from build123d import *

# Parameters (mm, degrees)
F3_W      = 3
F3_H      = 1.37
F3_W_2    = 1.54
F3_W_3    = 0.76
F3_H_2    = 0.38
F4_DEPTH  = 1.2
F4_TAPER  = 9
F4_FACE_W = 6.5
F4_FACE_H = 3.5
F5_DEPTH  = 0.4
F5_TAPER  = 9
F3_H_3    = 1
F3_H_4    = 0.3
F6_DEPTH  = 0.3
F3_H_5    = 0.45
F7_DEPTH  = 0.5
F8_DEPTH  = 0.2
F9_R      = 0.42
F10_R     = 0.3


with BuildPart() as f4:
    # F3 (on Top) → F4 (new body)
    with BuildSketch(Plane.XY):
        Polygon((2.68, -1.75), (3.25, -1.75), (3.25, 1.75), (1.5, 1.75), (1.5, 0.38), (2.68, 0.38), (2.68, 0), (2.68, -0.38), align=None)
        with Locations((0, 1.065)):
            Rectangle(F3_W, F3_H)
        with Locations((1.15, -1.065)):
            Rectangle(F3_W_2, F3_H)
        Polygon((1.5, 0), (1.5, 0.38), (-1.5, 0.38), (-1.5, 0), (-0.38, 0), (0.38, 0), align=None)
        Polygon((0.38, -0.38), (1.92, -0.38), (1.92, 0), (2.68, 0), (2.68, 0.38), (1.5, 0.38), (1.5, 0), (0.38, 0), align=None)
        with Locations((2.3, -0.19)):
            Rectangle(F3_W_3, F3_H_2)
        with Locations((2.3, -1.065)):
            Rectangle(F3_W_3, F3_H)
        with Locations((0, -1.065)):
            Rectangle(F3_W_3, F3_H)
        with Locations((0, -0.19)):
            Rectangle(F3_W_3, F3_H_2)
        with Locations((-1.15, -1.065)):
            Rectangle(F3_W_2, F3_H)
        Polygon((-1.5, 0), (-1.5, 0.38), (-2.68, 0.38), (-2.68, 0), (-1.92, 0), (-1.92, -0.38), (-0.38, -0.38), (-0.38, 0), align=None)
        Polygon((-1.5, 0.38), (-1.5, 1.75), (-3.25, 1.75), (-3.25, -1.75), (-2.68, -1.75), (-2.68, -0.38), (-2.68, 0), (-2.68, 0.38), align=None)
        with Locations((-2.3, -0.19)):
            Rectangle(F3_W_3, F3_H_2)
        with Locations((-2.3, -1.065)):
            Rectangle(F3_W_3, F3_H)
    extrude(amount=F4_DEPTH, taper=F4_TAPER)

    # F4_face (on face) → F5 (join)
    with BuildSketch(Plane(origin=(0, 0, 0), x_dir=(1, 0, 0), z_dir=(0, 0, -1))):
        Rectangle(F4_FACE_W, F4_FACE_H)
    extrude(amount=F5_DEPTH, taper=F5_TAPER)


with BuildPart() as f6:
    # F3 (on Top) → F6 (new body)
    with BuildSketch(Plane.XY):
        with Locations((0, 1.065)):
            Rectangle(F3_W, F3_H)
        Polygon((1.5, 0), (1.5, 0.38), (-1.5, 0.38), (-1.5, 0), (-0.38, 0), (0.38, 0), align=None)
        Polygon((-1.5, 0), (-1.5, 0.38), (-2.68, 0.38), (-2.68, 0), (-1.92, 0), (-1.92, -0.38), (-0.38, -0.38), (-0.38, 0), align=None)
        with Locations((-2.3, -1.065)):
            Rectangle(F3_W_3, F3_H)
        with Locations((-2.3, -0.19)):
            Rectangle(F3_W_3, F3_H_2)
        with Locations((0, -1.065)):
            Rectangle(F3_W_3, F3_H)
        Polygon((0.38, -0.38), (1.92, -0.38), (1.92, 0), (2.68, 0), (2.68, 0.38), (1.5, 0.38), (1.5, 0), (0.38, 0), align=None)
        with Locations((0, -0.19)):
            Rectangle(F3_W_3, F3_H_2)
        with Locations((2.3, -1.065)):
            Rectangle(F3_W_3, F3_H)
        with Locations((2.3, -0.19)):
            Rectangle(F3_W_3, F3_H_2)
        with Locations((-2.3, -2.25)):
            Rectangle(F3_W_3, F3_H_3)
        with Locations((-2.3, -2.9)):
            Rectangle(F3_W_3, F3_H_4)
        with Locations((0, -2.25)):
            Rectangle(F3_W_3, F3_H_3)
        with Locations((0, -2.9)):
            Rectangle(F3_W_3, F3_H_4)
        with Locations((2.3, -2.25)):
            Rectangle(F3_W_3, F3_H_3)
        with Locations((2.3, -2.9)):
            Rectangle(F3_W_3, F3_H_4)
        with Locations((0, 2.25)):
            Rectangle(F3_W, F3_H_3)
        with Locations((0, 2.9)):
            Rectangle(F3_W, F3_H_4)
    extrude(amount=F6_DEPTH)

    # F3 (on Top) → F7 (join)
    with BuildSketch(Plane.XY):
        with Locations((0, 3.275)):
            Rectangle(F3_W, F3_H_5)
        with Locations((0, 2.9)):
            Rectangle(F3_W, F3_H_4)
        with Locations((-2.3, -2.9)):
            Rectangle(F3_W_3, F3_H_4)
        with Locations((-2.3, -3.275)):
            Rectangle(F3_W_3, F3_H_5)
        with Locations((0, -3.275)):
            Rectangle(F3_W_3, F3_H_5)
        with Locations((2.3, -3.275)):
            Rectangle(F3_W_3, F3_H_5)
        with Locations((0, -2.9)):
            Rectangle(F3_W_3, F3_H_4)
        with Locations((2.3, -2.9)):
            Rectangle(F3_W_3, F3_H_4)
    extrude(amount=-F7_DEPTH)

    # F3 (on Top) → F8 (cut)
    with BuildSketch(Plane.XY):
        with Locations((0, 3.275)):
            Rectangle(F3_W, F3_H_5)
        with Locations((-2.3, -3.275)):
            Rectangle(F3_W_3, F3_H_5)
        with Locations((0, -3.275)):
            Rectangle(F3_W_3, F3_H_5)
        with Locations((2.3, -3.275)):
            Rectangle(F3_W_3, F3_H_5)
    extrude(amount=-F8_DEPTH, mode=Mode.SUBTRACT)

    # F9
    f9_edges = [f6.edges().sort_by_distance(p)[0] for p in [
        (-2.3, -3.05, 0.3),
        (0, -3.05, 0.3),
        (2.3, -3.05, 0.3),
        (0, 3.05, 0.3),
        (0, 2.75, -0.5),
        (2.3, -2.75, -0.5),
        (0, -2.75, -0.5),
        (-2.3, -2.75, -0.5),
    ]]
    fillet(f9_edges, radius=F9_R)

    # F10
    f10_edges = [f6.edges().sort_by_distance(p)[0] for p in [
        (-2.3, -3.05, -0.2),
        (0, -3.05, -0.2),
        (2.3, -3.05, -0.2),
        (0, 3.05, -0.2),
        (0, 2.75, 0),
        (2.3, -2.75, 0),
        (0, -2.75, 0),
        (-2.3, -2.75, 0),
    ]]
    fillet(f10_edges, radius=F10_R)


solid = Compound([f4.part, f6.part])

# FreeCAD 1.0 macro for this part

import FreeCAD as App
import Part
import Sketcher

V = App.Vector
Q = App.Units.Quantity


def edges_at(feature, points):
    """Names of the edges that pass closest to the given points."""
    edges = feature.Shape.Edges
    near = lambda p: min(range(len(edges)), key=lambda i: edges[i].distToShape(Part.Vertex(*p))[0])
    return sorted({f"Edge{near(p) + 1}" for p in points})

doc = App.newDocument("Part")
body = doc.addObject("PartDesign::Body", "Body")

# Sketch on XY plane
sketch1 = body.newObject("Sketcher::SketchObject", "Sketch")
sketch1.AttachmentSupport = (doc.getObject("XY_Plane"), [""])
sketch1.MapMode = "FlatFace"
sketch1.addGeometry(Part.LineSegment(V(3.2, -1.8, 0), V(3.2, 1.8, 0)), False)
sketch1.addGeometry(Part.LineSegment(V(3.2, 1.8, 0), V(-3.2, 1.8, 0)), False)
sketch1.addGeometry(Part.LineSegment(V(-3.2, 1.8, 0), V(-3.2, -1.8, 0)), False)
sketch1.addGeometry(Part.LineSegment(V(-3.2, -1.8, 0), V(3.2, -1.8, 0)), False)
sketch1.addConstraint(Sketcher.Constraint("Coincident", 0, 2, 1, 1))
sketch1.addConstraint(Sketcher.Constraint("Coincident", 1, 2, 2, 1))
sketch1.addConstraint(Sketcher.Constraint("Coincident", 2, 2, 3, 1))
sketch1.addConstraint(Sketcher.Constraint("Coincident", 3, 2, 0, 1))
sketch1.addConstraint(Sketcher.Constraint("Vertical", 0))
sketch1.addConstraint(Sketcher.Constraint("Horizontal", 1))
sketch1.addConstraint(Sketcher.Constraint("Vertical", 2))
sketch1.addConstraint(Sketcher.Constraint("Horizontal", 3))
sketch1.addConstraint(Sketcher.Constraint("Symmetric", 0, 2, 2, 2, -1, 1))
sketch1.addConstraint(Sketcher.Constraint("DistanceX", 1, 2, 1, 1, Q("6.5 mm")))
sketch1.addConstraint(Sketcher.Constraint("DistanceY", 0, 1, 0, 2, Q("3.5 mm")))
pad1 = body.newObject("PartDesign::Pad", "Pad")
pad1.Profile = sketch1
pad1.Length = 1.2
pad1.TaperAngle = -9

# Sketch on XY plane
sketch2 = body.newObject("Sketcher::SketchObject", "Sketch001")
sketch2.AttachmentSupport = (doc.getObject("XY_Plane"), [""])
sketch2.MapMode = "FlatFace"
sketch2.addGeometry(Part.LineSegment(V(-3.2, -1.8, 0), V(-3.2, 1.8, 0)), False)
sketch2.addGeometry(Part.LineSegment(V(-3.2, 1.8, 0), V(3.2, 1.8, 0)), False)
sketch2.addGeometry(Part.LineSegment(V(3.2, 1.8, 0), V(3.2, -1.8, 0)), False)
sketch2.addGeometry(Part.LineSegment(V(3.2, -1.8, 0), V(-3.2, -1.8, 0)), False)
sketch2.addConstraint(Sketcher.Constraint("Coincident", 0, 2, 1, 1))
sketch2.addConstraint(Sketcher.Constraint("Coincident", 1, 2, 2, 1))
sketch2.addConstraint(Sketcher.Constraint("Coincident", 2, 2, 3, 1))
sketch2.addConstraint(Sketcher.Constraint("Coincident", 3, 2, 0, 1))
sketch2.addConstraint(Sketcher.Constraint("Vertical", 0))
sketch2.addConstraint(Sketcher.Constraint("Horizontal", 1))
sketch2.addConstraint(Sketcher.Constraint("Vertical", 2))
sketch2.addConstraint(Sketcher.Constraint("Horizontal", 3))
sketch2.addConstraint(Sketcher.Constraint("Symmetric", 0, 2, 2, 2, -1, 1))
sketch2.addConstraint(Sketcher.Constraint("DistanceX", 1, 1, 1, 2, Q("6.5 mm")))
sketch2.addConstraint(Sketcher.Constraint("DistanceY", 0, 1, 0, 2, Q("3.5 mm")))
pad2 = body.newObject("PartDesign::Pad", "Pad001")
pad2.Profile = sketch2
pad2.Length = 0.4
pad2.Reversed = True
pad2.TaperAngle = -9
body2 = doc.addObject("PartDesign::Body", "Body001")

# Sketch on XY plane
sketch3 = body2.newObject("Sketcher::SketchObject", "Sketch002")
sketch3.AttachmentSupport = (doc.getObject("XY_Plane001"), [""])
sketch3.MapMode = "FlatFace"
sketch3.addGeometry(Part.LineSegment(V(-1.5, 0.4, 0), V(-2.7, 0.4, 0)), False)
sketch3.addGeometry(Part.LineSegment(V(-2.7, 0.4, 0), V(-2.7, -3, 0)), False)
sketch3.addGeometry(Part.LineSegment(V(-2.7, -3, 0), V(-1.9, -3, 0)), False)
sketch3.addGeometry(Part.LineSegment(V(-1.9, -3, 0), V(-1.9, -0.4, 0)), False)
sketch3.addGeometry(Part.LineSegment(V(-1.9, -0.4, 0), V(-0.4, -0.4, 0)), False)
sketch3.addGeometry(Part.LineSegment(V(-0.4, -0.4, 0), V(-0.4, -3, 0)), False)
sketch3.addGeometry(Part.LineSegment(V(-0.4, -3, 0), V(0.4, -3, 0)), False)
sketch3.addGeometry(Part.LineSegment(V(0.4, -3, 0), V(0.4, -0.4, 0)), False)
sketch3.addGeometry(Part.LineSegment(V(0.4, -0.4, 0), V(1.9, -0.4, 0)), False)
sketch3.addGeometry(Part.LineSegment(V(1.9, -0.4, 0), V(1.9, -3, 0)), False)
sketch3.addGeometry(Part.LineSegment(V(1.9, -3, 0), V(2.7, -3, 0)), False)
sketch3.addGeometry(Part.LineSegment(V(2.7, -3, 0), V(2.7, 0.4, 0)), False)
sketch3.addGeometry(Part.LineSegment(V(2.7, 0.4, 0), V(1.5, 0.4, 0)), False)
sketch3.addGeometry(Part.LineSegment(V(1.5, 0.4, 0), V(1.5, 3, 0)), False)
sketch3.addGeometry(Part.LineSegment(V(1.5, 3, 0), V(-1.5, 3, 0)), False)
sketch3.addGeometry(Part.LineSegment(V(-1.5, 3, 0), V(-1.5, 0.4, 0)), False)
sketch3.addConstraint(Sketcher.Constraint("Coincident", 0, 2, 1, 1))
sketch3.addConstraint(Sketcher.Constraint("Coincident", 1, 2, 2, 1))
sketch3.addConstraint(Sketcher.Constraint("Coincident", 2, 2, 3, 1))
sketch3.addConstraint(Sketcher.Constraint("Coincident", 3, 2, 4, 1))
sketch3.addConstraint(Sketcher.Constraint("Coincident", 4, 2, 5, 1))
sketch3.addConstraint(Sketcher.Constraint("Coincident", 5, 2, 6, 1))
sketch3.addConstraint(Sketcher.Constraint("Coincident", 6, 2, 7, 1))
sketch3.addConstraint(Sketcher.Constraint("Coincident", 7, 2, 8, 1))
sketch3.addConstraint(Sketcher.Constraint("Coincident", 8, 2, 9, 1))
sketch3.addConstraint(Sketcher.Constraint("Coincident", 9, 2, 10, 1))
sketch3.addConstraint(Sketcher.Constraint("Coincident", 10, 2, 11, 1))
sketch3.addConstraint(Sketcher.Constraint("Coincident", 11, 2, 12, 1))
sketch3.addConstraint(Sketcher.Constraint("Coincident", 12, 2, 13, 1))
sketch3.addConstraint(Sketcher.Constraint("Coincident", 13, 2, 14, 1))
sketch3.addConstraint(Sketcher.Constraint("Coincident", 14, 2, 15, 1))
sketch3.addConstraint(Sketcher.Constraint("Coincident", 15, 2, 0, 1))
sketch3.addConstraint(Sketcher.Constraint("Horizontal", 0))
sketch3.addConstraint(Sketcher.Constraint("Vertical", 1))
sketch3.addConstraint(Sketcher.Constraint("Horizontal", 2))
sketch3.addConstraint(Sketcher.Constraint("Vertical", 3))
sketch3.addConstraint(Sketcher.Constraint("Horizontal", 4))
sketch3.addConstraint(Sketcher.Constraint("Vertical", 5))
sketch3.addConstraint(Sketcher.Constraint("Horizontal", 6))
sketch3.addConstraint(Sketcher.Constraint("Vertical", 7))
sketch3.addConstraint(Sketcher.Constraint("Horizontal", 8))
sketch3.addConstraint(Sketcher.Constraint("Vertical", 9))
sketch3.addConstraint(Sketcher.Constraint("Horizontal", 10))
sketch3.addConstraint(Sketcher.Constraint("Vertical", 11))
sketch3.addConstraint(Sketcher.Constraint("Horizontal", 12))
sketch3.addConstraint(Sketcher.Constraint("Vertical", 13))
sketch3.addConstraint(Sketcher.Constraint("Horizontal", 14))
sketch3.addConstraint(Sketcher.Constraint("Vertical", 15))
sketch3.addConstraint(Sketcher.Constraint("Symmetric", 4, 2, 7, 2, -2))
sketch3.addConstraint(Sketcher.Constraint("Symmetric", 2, 2, 9, 2, -2))
sketch3.addConstraint(Sketcher.Constraint("Symmetric", 0, 2, 11, 2, -2))
sketch3.addConstraint(Sketcher.Constraint("Horizontal", 2, 2, 5, 2))
sketch3.addConstraint(Sketcher.Constraint("Equal", 2, 6))
sketch3.addConstraint(Sketcher.Constraint("Equal", 0, 12))
sketch3.addConstraint(Sketcher.Constraint("Equal", 9, 13))
sketch3.addConstraint(Sketcher.Constraint("DistanceX", 14, 2, 14, 1, Q("3 mm")))
sketch3.addConstraint(Sketcher.Constraint("DistanceX", 0, 2, 0, 1, Q("1.18 mm")))
sketch3.addConstraint(Sketcher.Constraint("DistanceX", 2, 1, 2, 2, Q("0.76 mm")))
sketch3.addConstraint(Sketcher.Constraint("DistanceY", 1, 2, 1, 1, Q("3.43 mm")))
sketch3.addConstraint(Sketcher.Constraint("DistanceY", 3, 1, 3, 2, Q("2.67 mm")))
sketch3.addConstraint(Sketcher.Constraint("DistanceY", -1, 1, 0, 2, Q("0.38 mm")))
pad3 = body2.newObject("PartDesign::Pad", "Pad002")
pad3.Profile = sketch3
pad3.Length = 0.3

# Sketch on XY plane
sketch4 = body2.newObject("Sketcher::SketchObject", "Sketch003")
sketch4.AttachmentSupport = (doc.getObject("XY_Plane001"), [""])
sketch4.MapMode = "FlatFace"
sketch4.addGeometry(Part.LineSegment(V(-1.5, 3.5, 0), V(-1.5, 2.8, 0)), False)
sketch4.addGeometry(Part.LineSegment(V(-1.5, 2.8, 0), V(1.5, 2.8, 0)), False)
sketch4.addGeometry(Part.LineSegment(V(1.5, 2.8, 0), V(1.5, 3.5, 0)), False)
sketch4.addGeometry(Part.LineSegment(V(1.5, 3.5, 0), V(-1.5, 3.5, 0)), False)
sketch4.addGeometry(Part.LineSegment(V(-2.7, -2.8, 0), V(-2.7, -3.5, 0)), False)
sketch4.addGeometry(Part.LineSegment(V(-2.7, -3.5, 0), V(-1.9, -3.5, 0)), False)
sketch4.addGeometry(Part.LineSegment(V(-1.9, -3.5, 0), V(-1.9, -2.8, 0)), False)
sketch4.addGeometry(Part.LineSegment(V(-1.9, -2.8, 0), V(-2.7, -2.8, 0)), False)
sketch4.addGeometry(Part.LineSegment(V(-0.4, -3.5, 0), V(0.4, -3.5, 0)), False)
sketch4.addGeometry(Part.LineSegment(V(0.4, -3.5, 0), V(0.4, -2.8, 0)), False)
sketch4.addGeometry(Part.LineSegment(V(0.4, -2.8, 0), V(-0.4, -2.8, 0)), False)
sketch4.addGeometry(Part.LineSegment(V(-0.4, -2.8, 0), V(-0.4, -3.5, 0)), False)
sketch4.addGeometry(Part.LineSegment(V(1.9, -3.5, 0), V(2.7, -3.5, 0)), False)
sketch4.addGeometry(Part.LineSegment(V(2.7, -3.5, 0), V(2.7, -2.8, 0)), False)
sketch4.addGeometry(Part.LineSegment(V(2.7, -2.8, 0), V(1.9, -2.8, 0)), False)
sketch4.addGeometry(Part.LineSegment(V(1.9, -2.8, 0), V(1.9, -3.5, 0)), False)
sketch4.addConstraint(Sketcher.Constraint("Coincident", 0, 2, 1, 1))
sketch4.addConstraint(Sketcher.Constraint("Coincident", 1, 2, 2, 1))
sketch4.addConstraint(Sketcher.Constraint("Coincident", 2, 2, 3, 1))
sketch4.addConstraint(Sketcher.Constraint("Coincident", 3, 2, 0, 1))
sketch4.addConstraint(Sketcher.Constraint("Coincident", 4, 2, 5, 1))
sketch4.addConstraint(Sketcher.Constraint("Coincident", 5, 2, 6, 1))
sketch4.addConstraint(Sketcher.Constraint("Coincident", 6, 2, 7, 1))
sketch4.addConstraint(Sketcher.Constraint("Coincident", 7, 2, 4, 1))
sketch4.addConstraint(Sketcher.Constraint("Coincident", 8, 2, 9, 1))
sketch4.addConstraint(Sketcher.Constraint("Coincident", 9, 2, 10, 1))
sketch4.addConstraint(Sketcher.Constraint("Coincident", 10, 2, 11, 1))
sketch4.addConstraint(Sketcher.Constraint("Coincident", 11, 2, 8, 1))
sketch4.addConstraint(Sketcher.Constraint("Coincident", 12, 2, 13, 1))
sketch4.addConstraint(Sketcher.Constraint("Coincident", 13, 2, 14, 1))
sketch4.addConstraint(Sketcher.Constraint("Coincident", 14, 2, 15, 1))
sketch4.addConstraint(Sketcher.Constraint("Coincident", 15, 2, 12, 1))
sketch4.addConstraint(Sketcher.Constraint("Vertical", 0))
sketch4.addConstraint(Sketcher.Constraint("Horizontal", 1))
sketch4.addConstraint(Sketcher.Constraint("Vertical", 2))
sketch4.addConstraint(Sketcher.Constraint("Horizontal", 3))
sketch4.addConstraint(Sketcher.Constraint("Vertical", 4))
sketch4.addConstraint(Sketcher.Constraint("Horizontal", 5))
sketch4.addConstraint(Sketcher.Constraint("Vertical", 6))
sketch4.addConstraint(Sketcher.Constraint("Horizontal", 7))
sketch4.addConstraint(Sketcher.Constraint("Horizontal", 8))
sketch4.addConstraint(Sketcher.Constraint("Vertical", 9))
sketch4.addConstraint(Sketcher.Constraint("Horizontal", 10))
sketch4.addConstraint(Sketcher.Constraint("Vertical", 11))
sketch4.addConstraint(Sketcher.Constraint("Horizontal", 12))
sketch4.addConstraint(Sketcher.Constraint("Vertical", 13))
sketch4.addConstraint(Sketcher.Constraint("Horizontal", 14))
sketch4.addConstraint(Sketcher.Constraint("Vertical", 15))
sketch4.addConstraint(Sketcher.Constraint("Symmetric", 4, 2, 12, 2, -2))
sketch4.addConstraint(Sketcher.Constraint("Symmetric", 6, 2, 14, 2, -2))
sketch4.addConstraint(Sketcher.Constraint("Horizontal", 5, 2, 8, 2))
sketch4.addConstraint(Sketcher.Constraint("Horizontal", 7, 2, 9, 2))
sketch4.addConstraint(Sketcher.Constraint("Equal", 7, 8))
sketch4.addConstraint(Sketcher.Constraint("Equal", 2, 4))
sketch4.addConstraint(Sketcher.Constraint("DistanceX", 1, 1, 1, 2, Q("3 mm")))
sketch4.addConstraint(Sketcher.Constraint("DistanceY", 4, 2, 3, 2, Q("7 mm")))
sketch4.addConstraint(Sketcher.Constraint("DistanceX", 5, 1, 5, 2, Q("0.76 mm")))
sketch4.addConstraint(Sketcher.Constraint("DistanceY", 0, 2, 0, 1, Q("0.75 mm")))
sketch4.addConstraint(Sketcher.Constraint("DistanceX", 0, 2, -1, 1, Q("1.5 mm")))
sketch4.addConstraint(Sketcher.Constraint("DistanceY", -1, 1, 2, 2, Q("3.5 mm")))
sketch4.addConstraint(Sketcher.Constraint("DistanceX", 5, 2, 8, 2, Q("2.3 mm")))
sketch4.addConstraint(Sketcher.Constraint("DistanceX", 8, 2, 12, 2, Q("2.3 mm")))
pad4 = body2.newObject("PartDesign::Pad", "Pad003")
pad4.Profile = sketch4
pad4.Length = 0.5
pad4.Reversed = True

# Sketch on XY plane
sketch5 = body2.newObject("Sketcher::SketchObject", "Sketch004")
sketch5.AttachmentSupport = (doc.getObject("XY_Plane001"), [""])
sketch5.MapMode = "FlatFace"
sketch5.addGeometry(Part.LineSegment(V(-1.5, 3.5, 0), V(-1.5, 3.05, 0)), False)
sketch5.addGeometry(Part.LineSegment(V(-1.5, 3.05, 0), V(1.5, 3.05, 0)), False)
sketch5.addGeometry(Part.LineSegment(V(1.5, 3.05, 0), V(1.5, 3.5, 0)), False)
sketch5.addGeometry(Part.LineSegment(V(1.5, 3.5, 0), V(-1.5, 3.5, 0)), False)
sketch5.addGeometry(Part.LineSegment(V(-2.68, -3.05, 0), V(-2.68, -3.5, 0)), False)
sketch5.addGeometry(Part.LineSegment(V(-2.68, -3.5, 0), V(-1.92, -3.5, 0)), False)
sketch5.addGeometry(Part.LineSegment(V(-1.92, -3.5, 0), V(-1.92, -3.05, 0)), False)
sketch5.addGeometry(Part.LineSegment(V(-1.92, -3.05, 0), V(-2.68, -3.05, 0)), False)
sketch5.addGeometry(Part.LineSegment(V(-0.38, -3.05, 0), V(-0.38, -3.5, 0)), False)
sketch5.addGeometry(Part.LineSegment(V(-0.38, -3.5, 0), V(0.38, -3.5, 0)), False)
sketch5.addGeometry(Part.LineSegment(V(0.38, -3.5, 0), V(0.38, -3.05, 0)), False)
sketch5.addGeometry(Part.LineSegment(V(0.38, -3.05, 0), V(-0.38, -3.05, 0)), False)
sketch5.addGeometry(Part.LineSegment(V(1.92, -3.05, 0), V(1.92, -3.5, 0)), False)
sketch5.addGeometry(Part.LineSegment(V(1.92, -3.5, 0), V(2.68, -3.5, 0)), False)
sketch5.addGeometry(Part.LineSegment(V(2.68, -3.5, 0), V(2.68, -3.05, 0)), False)
sketch5.addGeometry(Part.LineSegment(V(2.68, -3.05, 0), V(1.92, -3.05, 0)), False)
sketch5.addConstraint(Sketcher.Constraint("Coincident", 0, 2, 1, 1))
sketch5.addConstraint(Sketcher.Constraint("Coincident", 1, 2, 2, 1))
sketch5.addConstraint(Sketcher.Constraint("Coincident", 2, 2, 3, 1))
sketch5.addConstraint(Sketcher.Constraint("Coincident", 3, 2, 0, 1))
sketch5.addConstraint(Sketcher.Constraint("Coincident", 4, 2, 5, 1))
sketch5.addConstraint(Sketcher.Constraint("Coincident", 5, 2, 6, 1))
sketch5.addConstraint(Sketcher.Constraint("Coincident", 6, 2, 7, 1))
sketch5.addConstraint(Sketcher.Constraint("Coincident", 7, 2, 4, 1))
sketch5.addConstraint(Sketcher.Constraint("Coincident", 8, 2, 9, 1))
sketch5.addConstraint(Sketcher.Constraint("Coincident", 9, 2, 10, 1))
sketch5.addConstraint(Sketcher.Constraint("Coincident", 10, 2, 11, 1))
sketch5.addConstraint(Sketcher.Constraint("Coincident", 11, 2, 8, 1))
sketch5.addConstraint(Sketcher.Constraint("Coincident", 12, 2, 13, 1))
sketch5.addConstraint(Sketcher.Constraint("Coincident", 13, 2, 14, 1))
sketch5.addConstraint(Sketcher.Constraint("Coincident", 14, 2, 15, 1))
sketch5.addConstraint(Sketcher.Constraint("Coincident", 15, 2, 12, 1))
sketch5.addConstraint(Sketcher.Constraint("Vertical", 0))
sketch5.addConstraint(Sketcher.Constraint("Horizontal", 1))
sketch5.addConstraint(Sketcher.Constraint("Vertical", 2))
sketch5.addConstraint(Sketcher.Constraint("Horizontal", 3))
sketch5.addConstraint(Sketcher.Constraint("Vertical", 4))
sketch5.addConstraint(Sketcher.Constraint("Horizontal", 5))
sketch5.addConstraint(Sketcher.Constraint("Vertical", 6))
sketch5.addConstraint(Sketcher.Constraint("Horizontal", 7))
sketch5.addConstraint(Sketcher.Constraint("Vertical", 8))
sketch5.addConstraint(Sketcher.Constraint("Horizontal", 9))
sketch5.addConstraint(Sketcher.Constraint("Vertical", 10))
sketch5.addConstraint(Sketcher.Constraint("Horizontal", 11))
sketch5.addConstraint(Sketcher.Constraint("Vertical", 12))
sketch5.addConstraint(Sketcher.Constraint("Horizontal", 13))
sketch5.addConstraint(Sketcher.Constraint("Vertical", 14))
sketch5.addConstraint(Sketcher.Constraint("Horizontal", 15))
sketch5.addConstraint(Sketcher.Constraint("Symmetric", 5, 2, 12, 2, -2))
sketch5.addConstraint(Sketcher.Constraint("Symmetric", 7, 2, 14, 2, -2))
sketch5.addConstraint(Sketcher.Constraint("Horizontal", 5, 2, 8, 2))
sketch5.addConstraint(Sketcher.Constraint("Horizontal", 7, 2, 10, 2))
sketch5.addConstraint(Sketcher.Constraint("Equal", 7, 9))
sketch5.addConstraint(Sketcher.Constraint("Equal", 2, 4))
sketch5.addConstraint(Sketcher.Constraint("DistanceX", 1, 1, 1, 2, Q("3 mm")))
sketch5.addConstraint(Sketcher.Constraint("DistanceY", 4, 2, 3, 2, Q("7 mm")))
sketch5.addConstraint(Sketcher.Constraint("DistanceX", 5, 1, 5, 2, Q("0.76 mm")))
sketch5.addConstraint(Sketcher.Constraint("DistanceY", 0, 2, 0, 1, Q("0.45 mm")))
sketch5.addConstraint(Sketcher.Constraint("DistanceX", 0, 2, -1, 1, Q("1.5 mm")))
sketch5.addConstraint(Sketcher.Constraint("DistanceY", -1, 1, 2, 2, Q("3.5 mm")))
sketch5.addConstraint(Sketcher.Constraint("DistanceX", 4, 2, 8, 2, Q("2.3 mm")))
sketch5.addConstraint(Sketcher.Constraint("DistanceX", 8, 2, 12, 2, Q("2.3 mm")))
pocket1 = body2.newObject("PartDesign::Pocket", "Pocket")
pocket1.Profile = sketch5
pocket1.Length = 0.2
doc.recompute()

fillet = body2.newObject("PartDesign::Fillet", "Fillet")
fillet.Base = (pocket1, edges_at(pocket1, [
    (-2.3, -3.05, 0.3),
    (0, -3.05, 0.3),
    (2.3, -3.05, 0.3),
    (0, 3.05, 0.3),
    (0, 2.75, -0.5),
    (2.3, -2.75, -0.5),
    (0, -2.75, -0.5),
    (-2.3, -2.75, -0.5),
]))
fillet.Radius = 0.42
doc.recompute()

fillet2 = body2.newObject("PartDesign::Fillet", "Fillet001")
fillet2.Base = (fillet, edges_at(fillet, [
    (-2.3, -3.05, -0.2),
    (0, -3.05, -0.2),
    (2.3, -3.05, -0.2),
    (0, 3.05, -0.2),
    (0, 2.75, 0),
    (2.3, -2.75, 0),
    (0, -2.75, 0),
    (-2.3, -2.75, 0),
]))
fillet2.Radius = 0.3

doc.recompute()
